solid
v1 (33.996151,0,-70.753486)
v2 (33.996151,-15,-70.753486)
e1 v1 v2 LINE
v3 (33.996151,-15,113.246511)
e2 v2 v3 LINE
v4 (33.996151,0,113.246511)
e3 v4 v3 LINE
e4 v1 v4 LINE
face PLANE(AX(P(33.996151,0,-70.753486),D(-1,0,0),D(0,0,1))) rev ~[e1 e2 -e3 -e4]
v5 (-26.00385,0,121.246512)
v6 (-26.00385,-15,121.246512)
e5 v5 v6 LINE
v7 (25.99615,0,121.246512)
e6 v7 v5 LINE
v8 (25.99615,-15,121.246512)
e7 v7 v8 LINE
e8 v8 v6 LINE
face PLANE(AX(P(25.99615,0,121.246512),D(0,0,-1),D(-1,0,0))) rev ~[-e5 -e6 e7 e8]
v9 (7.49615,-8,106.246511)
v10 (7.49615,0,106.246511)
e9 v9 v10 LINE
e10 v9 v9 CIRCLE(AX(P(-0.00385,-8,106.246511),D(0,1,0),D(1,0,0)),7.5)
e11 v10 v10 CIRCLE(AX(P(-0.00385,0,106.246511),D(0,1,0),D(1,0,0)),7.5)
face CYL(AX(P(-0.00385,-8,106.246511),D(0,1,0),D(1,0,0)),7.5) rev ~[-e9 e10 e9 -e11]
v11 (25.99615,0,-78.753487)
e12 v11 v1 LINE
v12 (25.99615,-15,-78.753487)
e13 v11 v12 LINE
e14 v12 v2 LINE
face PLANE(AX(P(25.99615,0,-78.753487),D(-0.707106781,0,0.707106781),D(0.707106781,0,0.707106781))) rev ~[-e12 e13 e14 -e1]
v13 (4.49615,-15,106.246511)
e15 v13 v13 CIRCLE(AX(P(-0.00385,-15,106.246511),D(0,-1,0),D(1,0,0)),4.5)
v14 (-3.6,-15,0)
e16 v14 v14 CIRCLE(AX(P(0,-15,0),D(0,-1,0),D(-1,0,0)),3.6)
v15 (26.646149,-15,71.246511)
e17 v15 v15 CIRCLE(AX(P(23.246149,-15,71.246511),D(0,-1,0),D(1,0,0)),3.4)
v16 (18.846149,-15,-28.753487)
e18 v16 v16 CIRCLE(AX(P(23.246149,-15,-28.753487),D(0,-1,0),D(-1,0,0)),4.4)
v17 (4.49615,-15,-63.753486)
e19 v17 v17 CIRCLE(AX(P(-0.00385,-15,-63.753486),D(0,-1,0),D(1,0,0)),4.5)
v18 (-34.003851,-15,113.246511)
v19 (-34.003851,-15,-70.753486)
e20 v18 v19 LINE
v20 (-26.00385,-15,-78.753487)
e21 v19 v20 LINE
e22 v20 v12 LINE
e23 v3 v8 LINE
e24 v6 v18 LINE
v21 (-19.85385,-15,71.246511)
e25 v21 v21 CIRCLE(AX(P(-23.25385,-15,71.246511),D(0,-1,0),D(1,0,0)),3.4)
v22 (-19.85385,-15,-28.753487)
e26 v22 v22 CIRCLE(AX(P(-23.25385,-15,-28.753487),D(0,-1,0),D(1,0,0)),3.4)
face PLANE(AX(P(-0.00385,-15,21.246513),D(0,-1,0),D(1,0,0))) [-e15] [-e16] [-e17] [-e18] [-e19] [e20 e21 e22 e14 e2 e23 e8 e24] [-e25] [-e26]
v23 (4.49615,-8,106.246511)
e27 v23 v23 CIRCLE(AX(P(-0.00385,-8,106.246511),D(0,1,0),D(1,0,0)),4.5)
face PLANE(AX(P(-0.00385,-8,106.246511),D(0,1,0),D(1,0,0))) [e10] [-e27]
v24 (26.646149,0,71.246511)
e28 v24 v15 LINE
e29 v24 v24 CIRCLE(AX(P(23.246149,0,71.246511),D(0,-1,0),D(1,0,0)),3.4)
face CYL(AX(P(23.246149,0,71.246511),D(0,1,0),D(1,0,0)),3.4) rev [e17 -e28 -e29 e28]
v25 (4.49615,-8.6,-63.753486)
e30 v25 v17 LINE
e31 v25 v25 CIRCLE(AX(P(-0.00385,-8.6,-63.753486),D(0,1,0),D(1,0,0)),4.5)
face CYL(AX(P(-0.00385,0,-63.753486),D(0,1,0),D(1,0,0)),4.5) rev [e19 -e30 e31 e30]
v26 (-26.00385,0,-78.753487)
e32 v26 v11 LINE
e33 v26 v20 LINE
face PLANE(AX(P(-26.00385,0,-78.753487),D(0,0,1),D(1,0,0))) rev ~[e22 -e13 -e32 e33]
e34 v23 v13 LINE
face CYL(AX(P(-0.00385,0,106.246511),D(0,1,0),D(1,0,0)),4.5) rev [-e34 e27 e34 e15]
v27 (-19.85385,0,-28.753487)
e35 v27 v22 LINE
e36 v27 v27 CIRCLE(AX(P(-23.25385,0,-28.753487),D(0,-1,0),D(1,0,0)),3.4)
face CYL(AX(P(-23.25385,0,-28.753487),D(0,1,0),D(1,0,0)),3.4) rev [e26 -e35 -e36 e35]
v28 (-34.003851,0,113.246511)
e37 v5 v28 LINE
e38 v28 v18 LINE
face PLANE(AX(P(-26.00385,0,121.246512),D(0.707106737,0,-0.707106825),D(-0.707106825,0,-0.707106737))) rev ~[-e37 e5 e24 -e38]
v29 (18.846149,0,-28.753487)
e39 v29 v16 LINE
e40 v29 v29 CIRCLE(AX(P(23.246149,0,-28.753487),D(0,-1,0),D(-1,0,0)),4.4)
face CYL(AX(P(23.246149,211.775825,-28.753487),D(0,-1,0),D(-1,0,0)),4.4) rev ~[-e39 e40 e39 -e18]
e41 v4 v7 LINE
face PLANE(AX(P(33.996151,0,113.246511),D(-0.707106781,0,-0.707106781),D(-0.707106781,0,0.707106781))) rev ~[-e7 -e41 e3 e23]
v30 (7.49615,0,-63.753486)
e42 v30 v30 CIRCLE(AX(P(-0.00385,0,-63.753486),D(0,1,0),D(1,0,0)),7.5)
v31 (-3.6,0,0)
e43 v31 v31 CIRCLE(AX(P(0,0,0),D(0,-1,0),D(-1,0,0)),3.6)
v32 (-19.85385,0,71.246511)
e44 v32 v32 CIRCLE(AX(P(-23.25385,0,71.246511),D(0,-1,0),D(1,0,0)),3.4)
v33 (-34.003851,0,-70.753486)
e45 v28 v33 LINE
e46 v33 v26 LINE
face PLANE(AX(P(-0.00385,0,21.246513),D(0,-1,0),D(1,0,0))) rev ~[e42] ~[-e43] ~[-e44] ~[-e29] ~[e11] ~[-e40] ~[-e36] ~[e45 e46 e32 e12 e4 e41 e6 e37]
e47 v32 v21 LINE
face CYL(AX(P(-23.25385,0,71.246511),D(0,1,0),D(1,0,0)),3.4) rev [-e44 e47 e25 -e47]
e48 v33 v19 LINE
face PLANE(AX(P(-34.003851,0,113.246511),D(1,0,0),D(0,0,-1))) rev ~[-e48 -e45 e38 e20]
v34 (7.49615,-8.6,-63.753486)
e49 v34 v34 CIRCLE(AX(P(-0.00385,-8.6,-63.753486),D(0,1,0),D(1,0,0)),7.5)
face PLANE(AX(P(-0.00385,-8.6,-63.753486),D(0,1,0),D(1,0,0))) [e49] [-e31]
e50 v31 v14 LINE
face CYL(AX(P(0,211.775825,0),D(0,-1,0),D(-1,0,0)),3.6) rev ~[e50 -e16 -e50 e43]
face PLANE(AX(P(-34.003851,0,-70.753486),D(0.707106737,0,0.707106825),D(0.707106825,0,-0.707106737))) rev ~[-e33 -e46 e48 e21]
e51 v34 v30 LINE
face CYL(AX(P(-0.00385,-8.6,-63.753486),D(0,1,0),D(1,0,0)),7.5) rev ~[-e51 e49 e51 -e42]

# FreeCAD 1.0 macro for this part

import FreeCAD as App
import Part
import Sketcher

V = App.Vector


def add_polygon(sketch, points):
    """Adds a closed chain of lines whose ends are joined by coincident constraints."""
    first, n = sketch.GeometryCount, len(points)
    for a, b in zip(points, points[1:] + points[:1]):
        sketch.addGeometry(Part.LineSegment(App.Vector(*a, 0), App.Vector(*b, 0)), False)
    for i in range(n):
        sketch.addConstraint(Sketcher.Constraint("Coincident", first + i, 2, first + (i + 1) % n, 1))

doc = App.newDocument("Part")
body = doc.addObject("PartDesign::Body", "Body")

# Sketch on XZ plane
sketch1 = body.newObject("Sketcher::SketchObject", "Sketch")
sketch1.AttachmentSupport = (doc.getObject("XZ_Plane"), [""])
sketch1.MapMode = "FlatFace"
add_polygon(sketch1, [(26, 121.2), (-26, 121.2), (-34, 113.2), (-34, -70.8), (-26, -78.8), (26, -78.8), (34, -70.8), (34, 113.2)])  # lines 0-7
sketch1.addGeometry(Part.Circle(V(-23.3, -28.8, 0), V(0, 0, 1), 3.4), False)  # 8
sketch1.addGeometry(Part.Circle(V(0, -63.8, 0), V(0, 0, 1), 4.5), False)  # 9
sketch1.addGeometry(Part.Circle(V(23.2, -28.8, 0), V(0, 0, 1), 3.4), False)  # 10
sketch1.addGeometry(Part.Circle(V(-23.3, 71.2, 0), V(0, 0, 1), 3.4), False)  # 11
sketch1.addGeometry(Part.Circle(V(0, 106.2, 0), V(0, 0, 1), 4.5), False)  # 12
sketch1.addGeometry(Part.Circle(V(23.2, 71.2, 0), V(0, 0, 1), 3.4), False)  # 13
sketch1.addConstraint([
    Sketcher.Constraint("Horizontal", 0),
    Sketcher.Constraint("Vertical", 2),
    Sketcher.Constraint("Horizontal", 4),
    Sketcher.Constraint("Vertical", 6),
    Sketcher.Constraint("Equal", 8, 10),
    Sketcher.Constraint("Equal", 10, 11),
    Sketcher.Constraint("Equal", 9, 12),
    Sketcher.Constraint("Equal", 11, 13),
    Sketcher.Constraint("Perpendicular", 1, 3),
    Sketcher.Constraint("Perpendicular", 3, 5),
    Sketcher.Constraint("Perpendicular", 5, 7),
    Sketcher.Constraint("Horizontal", 8, 3, 10, 3),
    Sketcher.Constraint("Horizontal", 11, 3, 13, 3),
    Sketcher.Constraint("Horizontal", 2, 2, 5, 2),
    Sketcher.Constraint("Horizontal", 1, 2, 6, 2),
    Sketcher.Constraint("Vertical", 8, 3, 11, 3),
    Sketcher.Constraint("Vertical", 9, 3, 12, 3),
    Sketcher.Constraint("Vertical", 10, 3, 13, 3),
    Sketcher.Constraint("Vertical", 0, 2, 3, 2),
    Sketcher.Constraint("Vertical", 4, 2, 7, 2),
    Sketcher.Constraint("Diameter", 9, 9.0),
    Sketcher.Constraint("Diameter", 8, 6.8),
    Sketcher.Constraint("DistanceX", 0, 2, 0, 1, 52.0),
    Sketcher.Constraint("DistanceY", 9, 3, 8, 3, 34.999999),
    Sketcher.Constraint("DistanceY", 8, 3, 11, 3, 99.999998),
    Sketcher.Constraint("DistanceY", 11, 3, 12, 3, 34.999999),
    Sketcher.Constraint("DistanceX", 0, 2, 12, 3, 25.999999),
    Sketcher.Constraint("DistanceY", 12, 3, 0, 2, 15.000002),
    Sketcher.Constraint("DistanceX", 1, 2, 0, 2, 8.000002),
    Sketcher.Constraint("DistanceY", 2, 2, 9, 3, 7.0),
    Sketcher.Constraint("DistanceX", 8, 3, 10, 3, 46.499999),
    Sketcher.Constraint("DistanceX", 8, 3, 9, 3, 23.25),
    Sketcher.Constraint("DistanceX", 8, 3, -1, 1, 23.25385),
    Sketcher.Constraint("DistanceY", -1, 1, 11, 3, 71.246511),
])
pad1 = body.newObject("PartDesign::Pad", "Pad")
pad1.Profile = sketch1
pad1.Length = 15

# Sketch on XZ plane
sketch2 = body.newObject("Sketcher::SketchObject", "Sketch001")
sketch2.AttachmentSupport = (doc.getObject("XZ_Plane"), [""])
sketch2.MapMode = "FlatFace"
sketch2.addGeometry(Part.Circle(V(0, 106.2, 0), V(0, 0, 1), 4.4), False)
sketch2.addConstraint([
    Sketcher.Constraint("Diameter", 0, 8.8),
    Sketcher.Constraint("DistanceX", 0, 3, -1, 1, 0.00385),
    Sketcher.Constraint("DistanceY", -1, 1, 0, 3, 106.246511),
])
doc.recompute()
hole = body.newObject("PartDesign::Hole", "Hole")
hole.Profile = sketch2
hole.ThreadType = "None"
hole.Diameter = 8.8
hole.DepthType = "ThroughAll"
hole.HoleCutType = "Counterbore"
hole.HoleCutDiameter = 15
hole.HoleCutDepth = 8
hole.Reversed = True

# Sketch on XZ plane
sketch3 = body.newObject("Sketcher::SketchObject", "Sketch002")
sketch3.AttachmentSupport = (doc.getObject("XZ_Plane"), [""])
sketch3.MapMode = "FlatFace"
sketch3.addGeometry(Part.Circle(V(0, -63.8, 0), V(0, 0, 1), 4.4), False)
sketch3.addConstraint([
    Sketcher.Constraint("Diameter", 0, 8.8),
    Sketcher.Constraint("DistanceX", 0, 3, -1, 1, 0.00385),
    Sketcher.Constraint("DistanceY", 0, 3, -1, 1, 63.753486),
])
doc.recompute()
hole2 = body.newObject("PartDesign::Hole", "Hole001")
hole2.Profile = sketch3
hole2.ThreadType = "None"
hole2.Diameter = 8.8
hole2.DepthType = "ThroughAll"
hole2.HoleCutType = "Counterbore"
hole2.HoleCutDiameter = 15
hole2.HoleCutDepth = 8.6
hole2.Reversed = True

# Sketch on XZ plane
sketch4 = body.newObject("Sketcher::SketchObject", "Sketch003")
sketch4.AttachmentSupport = (doc.getObject("XZ_Plane"), [""])
sketch4.MapMode = "FlatFace"
sketch4.addGeometry(Part.Circle(V(23.2, -28.8, 0), V(0, 0, 1), 4.4), False)
sketch4.addConstraint([
    Sketcher.Constraint("Diameter", 0, 8.8),
    Sketcher.Constraint("DistanceX", -1, 1, 0, 3, 23.246149),
    Sketcher.Constraint("DistanceY", 0, 3, -1, 1, 28.753487),
])
doc.recompute()
hole3 = body.newObject("PartDesign::Hole", "Hole002")
hole3.Profile = sketch4
hole3.ThreadType = "None"
hole3.Diameter = 8.8
hole3.DepthType = "ThroughAll"
hole3.Reversed = True

# Sketch on XZ plane
sketch5 = body.newObject("Sketcher::SketchObject", "Sketch004")
sketch5.AttachmentSupport = (doc.getObject("XZ_Plane"), [""])
sketch5.MapMode = "FlatFace"
sketch5.addGeometry(Part.Circle(V(0, 0, 0), V(0, 0, 1), 3.6), False)
sketch5.addConstraint([
    Sketcher.Constraint("Coincident", 0, 3, -1, 1),
    Sketcher.Constraint("Diameter", 0, 7.2),
])
doc.recompute()
hole4 = body.newObject("PartDesign::Hole", "Hole003")
hole4.Profile = sketch5
hole4.ThreadType = "None"
hole4.Diameter = 7.2
hole4.DepthType = "ThroughAll"
hole4.Reversed = True

doc.recompute()
